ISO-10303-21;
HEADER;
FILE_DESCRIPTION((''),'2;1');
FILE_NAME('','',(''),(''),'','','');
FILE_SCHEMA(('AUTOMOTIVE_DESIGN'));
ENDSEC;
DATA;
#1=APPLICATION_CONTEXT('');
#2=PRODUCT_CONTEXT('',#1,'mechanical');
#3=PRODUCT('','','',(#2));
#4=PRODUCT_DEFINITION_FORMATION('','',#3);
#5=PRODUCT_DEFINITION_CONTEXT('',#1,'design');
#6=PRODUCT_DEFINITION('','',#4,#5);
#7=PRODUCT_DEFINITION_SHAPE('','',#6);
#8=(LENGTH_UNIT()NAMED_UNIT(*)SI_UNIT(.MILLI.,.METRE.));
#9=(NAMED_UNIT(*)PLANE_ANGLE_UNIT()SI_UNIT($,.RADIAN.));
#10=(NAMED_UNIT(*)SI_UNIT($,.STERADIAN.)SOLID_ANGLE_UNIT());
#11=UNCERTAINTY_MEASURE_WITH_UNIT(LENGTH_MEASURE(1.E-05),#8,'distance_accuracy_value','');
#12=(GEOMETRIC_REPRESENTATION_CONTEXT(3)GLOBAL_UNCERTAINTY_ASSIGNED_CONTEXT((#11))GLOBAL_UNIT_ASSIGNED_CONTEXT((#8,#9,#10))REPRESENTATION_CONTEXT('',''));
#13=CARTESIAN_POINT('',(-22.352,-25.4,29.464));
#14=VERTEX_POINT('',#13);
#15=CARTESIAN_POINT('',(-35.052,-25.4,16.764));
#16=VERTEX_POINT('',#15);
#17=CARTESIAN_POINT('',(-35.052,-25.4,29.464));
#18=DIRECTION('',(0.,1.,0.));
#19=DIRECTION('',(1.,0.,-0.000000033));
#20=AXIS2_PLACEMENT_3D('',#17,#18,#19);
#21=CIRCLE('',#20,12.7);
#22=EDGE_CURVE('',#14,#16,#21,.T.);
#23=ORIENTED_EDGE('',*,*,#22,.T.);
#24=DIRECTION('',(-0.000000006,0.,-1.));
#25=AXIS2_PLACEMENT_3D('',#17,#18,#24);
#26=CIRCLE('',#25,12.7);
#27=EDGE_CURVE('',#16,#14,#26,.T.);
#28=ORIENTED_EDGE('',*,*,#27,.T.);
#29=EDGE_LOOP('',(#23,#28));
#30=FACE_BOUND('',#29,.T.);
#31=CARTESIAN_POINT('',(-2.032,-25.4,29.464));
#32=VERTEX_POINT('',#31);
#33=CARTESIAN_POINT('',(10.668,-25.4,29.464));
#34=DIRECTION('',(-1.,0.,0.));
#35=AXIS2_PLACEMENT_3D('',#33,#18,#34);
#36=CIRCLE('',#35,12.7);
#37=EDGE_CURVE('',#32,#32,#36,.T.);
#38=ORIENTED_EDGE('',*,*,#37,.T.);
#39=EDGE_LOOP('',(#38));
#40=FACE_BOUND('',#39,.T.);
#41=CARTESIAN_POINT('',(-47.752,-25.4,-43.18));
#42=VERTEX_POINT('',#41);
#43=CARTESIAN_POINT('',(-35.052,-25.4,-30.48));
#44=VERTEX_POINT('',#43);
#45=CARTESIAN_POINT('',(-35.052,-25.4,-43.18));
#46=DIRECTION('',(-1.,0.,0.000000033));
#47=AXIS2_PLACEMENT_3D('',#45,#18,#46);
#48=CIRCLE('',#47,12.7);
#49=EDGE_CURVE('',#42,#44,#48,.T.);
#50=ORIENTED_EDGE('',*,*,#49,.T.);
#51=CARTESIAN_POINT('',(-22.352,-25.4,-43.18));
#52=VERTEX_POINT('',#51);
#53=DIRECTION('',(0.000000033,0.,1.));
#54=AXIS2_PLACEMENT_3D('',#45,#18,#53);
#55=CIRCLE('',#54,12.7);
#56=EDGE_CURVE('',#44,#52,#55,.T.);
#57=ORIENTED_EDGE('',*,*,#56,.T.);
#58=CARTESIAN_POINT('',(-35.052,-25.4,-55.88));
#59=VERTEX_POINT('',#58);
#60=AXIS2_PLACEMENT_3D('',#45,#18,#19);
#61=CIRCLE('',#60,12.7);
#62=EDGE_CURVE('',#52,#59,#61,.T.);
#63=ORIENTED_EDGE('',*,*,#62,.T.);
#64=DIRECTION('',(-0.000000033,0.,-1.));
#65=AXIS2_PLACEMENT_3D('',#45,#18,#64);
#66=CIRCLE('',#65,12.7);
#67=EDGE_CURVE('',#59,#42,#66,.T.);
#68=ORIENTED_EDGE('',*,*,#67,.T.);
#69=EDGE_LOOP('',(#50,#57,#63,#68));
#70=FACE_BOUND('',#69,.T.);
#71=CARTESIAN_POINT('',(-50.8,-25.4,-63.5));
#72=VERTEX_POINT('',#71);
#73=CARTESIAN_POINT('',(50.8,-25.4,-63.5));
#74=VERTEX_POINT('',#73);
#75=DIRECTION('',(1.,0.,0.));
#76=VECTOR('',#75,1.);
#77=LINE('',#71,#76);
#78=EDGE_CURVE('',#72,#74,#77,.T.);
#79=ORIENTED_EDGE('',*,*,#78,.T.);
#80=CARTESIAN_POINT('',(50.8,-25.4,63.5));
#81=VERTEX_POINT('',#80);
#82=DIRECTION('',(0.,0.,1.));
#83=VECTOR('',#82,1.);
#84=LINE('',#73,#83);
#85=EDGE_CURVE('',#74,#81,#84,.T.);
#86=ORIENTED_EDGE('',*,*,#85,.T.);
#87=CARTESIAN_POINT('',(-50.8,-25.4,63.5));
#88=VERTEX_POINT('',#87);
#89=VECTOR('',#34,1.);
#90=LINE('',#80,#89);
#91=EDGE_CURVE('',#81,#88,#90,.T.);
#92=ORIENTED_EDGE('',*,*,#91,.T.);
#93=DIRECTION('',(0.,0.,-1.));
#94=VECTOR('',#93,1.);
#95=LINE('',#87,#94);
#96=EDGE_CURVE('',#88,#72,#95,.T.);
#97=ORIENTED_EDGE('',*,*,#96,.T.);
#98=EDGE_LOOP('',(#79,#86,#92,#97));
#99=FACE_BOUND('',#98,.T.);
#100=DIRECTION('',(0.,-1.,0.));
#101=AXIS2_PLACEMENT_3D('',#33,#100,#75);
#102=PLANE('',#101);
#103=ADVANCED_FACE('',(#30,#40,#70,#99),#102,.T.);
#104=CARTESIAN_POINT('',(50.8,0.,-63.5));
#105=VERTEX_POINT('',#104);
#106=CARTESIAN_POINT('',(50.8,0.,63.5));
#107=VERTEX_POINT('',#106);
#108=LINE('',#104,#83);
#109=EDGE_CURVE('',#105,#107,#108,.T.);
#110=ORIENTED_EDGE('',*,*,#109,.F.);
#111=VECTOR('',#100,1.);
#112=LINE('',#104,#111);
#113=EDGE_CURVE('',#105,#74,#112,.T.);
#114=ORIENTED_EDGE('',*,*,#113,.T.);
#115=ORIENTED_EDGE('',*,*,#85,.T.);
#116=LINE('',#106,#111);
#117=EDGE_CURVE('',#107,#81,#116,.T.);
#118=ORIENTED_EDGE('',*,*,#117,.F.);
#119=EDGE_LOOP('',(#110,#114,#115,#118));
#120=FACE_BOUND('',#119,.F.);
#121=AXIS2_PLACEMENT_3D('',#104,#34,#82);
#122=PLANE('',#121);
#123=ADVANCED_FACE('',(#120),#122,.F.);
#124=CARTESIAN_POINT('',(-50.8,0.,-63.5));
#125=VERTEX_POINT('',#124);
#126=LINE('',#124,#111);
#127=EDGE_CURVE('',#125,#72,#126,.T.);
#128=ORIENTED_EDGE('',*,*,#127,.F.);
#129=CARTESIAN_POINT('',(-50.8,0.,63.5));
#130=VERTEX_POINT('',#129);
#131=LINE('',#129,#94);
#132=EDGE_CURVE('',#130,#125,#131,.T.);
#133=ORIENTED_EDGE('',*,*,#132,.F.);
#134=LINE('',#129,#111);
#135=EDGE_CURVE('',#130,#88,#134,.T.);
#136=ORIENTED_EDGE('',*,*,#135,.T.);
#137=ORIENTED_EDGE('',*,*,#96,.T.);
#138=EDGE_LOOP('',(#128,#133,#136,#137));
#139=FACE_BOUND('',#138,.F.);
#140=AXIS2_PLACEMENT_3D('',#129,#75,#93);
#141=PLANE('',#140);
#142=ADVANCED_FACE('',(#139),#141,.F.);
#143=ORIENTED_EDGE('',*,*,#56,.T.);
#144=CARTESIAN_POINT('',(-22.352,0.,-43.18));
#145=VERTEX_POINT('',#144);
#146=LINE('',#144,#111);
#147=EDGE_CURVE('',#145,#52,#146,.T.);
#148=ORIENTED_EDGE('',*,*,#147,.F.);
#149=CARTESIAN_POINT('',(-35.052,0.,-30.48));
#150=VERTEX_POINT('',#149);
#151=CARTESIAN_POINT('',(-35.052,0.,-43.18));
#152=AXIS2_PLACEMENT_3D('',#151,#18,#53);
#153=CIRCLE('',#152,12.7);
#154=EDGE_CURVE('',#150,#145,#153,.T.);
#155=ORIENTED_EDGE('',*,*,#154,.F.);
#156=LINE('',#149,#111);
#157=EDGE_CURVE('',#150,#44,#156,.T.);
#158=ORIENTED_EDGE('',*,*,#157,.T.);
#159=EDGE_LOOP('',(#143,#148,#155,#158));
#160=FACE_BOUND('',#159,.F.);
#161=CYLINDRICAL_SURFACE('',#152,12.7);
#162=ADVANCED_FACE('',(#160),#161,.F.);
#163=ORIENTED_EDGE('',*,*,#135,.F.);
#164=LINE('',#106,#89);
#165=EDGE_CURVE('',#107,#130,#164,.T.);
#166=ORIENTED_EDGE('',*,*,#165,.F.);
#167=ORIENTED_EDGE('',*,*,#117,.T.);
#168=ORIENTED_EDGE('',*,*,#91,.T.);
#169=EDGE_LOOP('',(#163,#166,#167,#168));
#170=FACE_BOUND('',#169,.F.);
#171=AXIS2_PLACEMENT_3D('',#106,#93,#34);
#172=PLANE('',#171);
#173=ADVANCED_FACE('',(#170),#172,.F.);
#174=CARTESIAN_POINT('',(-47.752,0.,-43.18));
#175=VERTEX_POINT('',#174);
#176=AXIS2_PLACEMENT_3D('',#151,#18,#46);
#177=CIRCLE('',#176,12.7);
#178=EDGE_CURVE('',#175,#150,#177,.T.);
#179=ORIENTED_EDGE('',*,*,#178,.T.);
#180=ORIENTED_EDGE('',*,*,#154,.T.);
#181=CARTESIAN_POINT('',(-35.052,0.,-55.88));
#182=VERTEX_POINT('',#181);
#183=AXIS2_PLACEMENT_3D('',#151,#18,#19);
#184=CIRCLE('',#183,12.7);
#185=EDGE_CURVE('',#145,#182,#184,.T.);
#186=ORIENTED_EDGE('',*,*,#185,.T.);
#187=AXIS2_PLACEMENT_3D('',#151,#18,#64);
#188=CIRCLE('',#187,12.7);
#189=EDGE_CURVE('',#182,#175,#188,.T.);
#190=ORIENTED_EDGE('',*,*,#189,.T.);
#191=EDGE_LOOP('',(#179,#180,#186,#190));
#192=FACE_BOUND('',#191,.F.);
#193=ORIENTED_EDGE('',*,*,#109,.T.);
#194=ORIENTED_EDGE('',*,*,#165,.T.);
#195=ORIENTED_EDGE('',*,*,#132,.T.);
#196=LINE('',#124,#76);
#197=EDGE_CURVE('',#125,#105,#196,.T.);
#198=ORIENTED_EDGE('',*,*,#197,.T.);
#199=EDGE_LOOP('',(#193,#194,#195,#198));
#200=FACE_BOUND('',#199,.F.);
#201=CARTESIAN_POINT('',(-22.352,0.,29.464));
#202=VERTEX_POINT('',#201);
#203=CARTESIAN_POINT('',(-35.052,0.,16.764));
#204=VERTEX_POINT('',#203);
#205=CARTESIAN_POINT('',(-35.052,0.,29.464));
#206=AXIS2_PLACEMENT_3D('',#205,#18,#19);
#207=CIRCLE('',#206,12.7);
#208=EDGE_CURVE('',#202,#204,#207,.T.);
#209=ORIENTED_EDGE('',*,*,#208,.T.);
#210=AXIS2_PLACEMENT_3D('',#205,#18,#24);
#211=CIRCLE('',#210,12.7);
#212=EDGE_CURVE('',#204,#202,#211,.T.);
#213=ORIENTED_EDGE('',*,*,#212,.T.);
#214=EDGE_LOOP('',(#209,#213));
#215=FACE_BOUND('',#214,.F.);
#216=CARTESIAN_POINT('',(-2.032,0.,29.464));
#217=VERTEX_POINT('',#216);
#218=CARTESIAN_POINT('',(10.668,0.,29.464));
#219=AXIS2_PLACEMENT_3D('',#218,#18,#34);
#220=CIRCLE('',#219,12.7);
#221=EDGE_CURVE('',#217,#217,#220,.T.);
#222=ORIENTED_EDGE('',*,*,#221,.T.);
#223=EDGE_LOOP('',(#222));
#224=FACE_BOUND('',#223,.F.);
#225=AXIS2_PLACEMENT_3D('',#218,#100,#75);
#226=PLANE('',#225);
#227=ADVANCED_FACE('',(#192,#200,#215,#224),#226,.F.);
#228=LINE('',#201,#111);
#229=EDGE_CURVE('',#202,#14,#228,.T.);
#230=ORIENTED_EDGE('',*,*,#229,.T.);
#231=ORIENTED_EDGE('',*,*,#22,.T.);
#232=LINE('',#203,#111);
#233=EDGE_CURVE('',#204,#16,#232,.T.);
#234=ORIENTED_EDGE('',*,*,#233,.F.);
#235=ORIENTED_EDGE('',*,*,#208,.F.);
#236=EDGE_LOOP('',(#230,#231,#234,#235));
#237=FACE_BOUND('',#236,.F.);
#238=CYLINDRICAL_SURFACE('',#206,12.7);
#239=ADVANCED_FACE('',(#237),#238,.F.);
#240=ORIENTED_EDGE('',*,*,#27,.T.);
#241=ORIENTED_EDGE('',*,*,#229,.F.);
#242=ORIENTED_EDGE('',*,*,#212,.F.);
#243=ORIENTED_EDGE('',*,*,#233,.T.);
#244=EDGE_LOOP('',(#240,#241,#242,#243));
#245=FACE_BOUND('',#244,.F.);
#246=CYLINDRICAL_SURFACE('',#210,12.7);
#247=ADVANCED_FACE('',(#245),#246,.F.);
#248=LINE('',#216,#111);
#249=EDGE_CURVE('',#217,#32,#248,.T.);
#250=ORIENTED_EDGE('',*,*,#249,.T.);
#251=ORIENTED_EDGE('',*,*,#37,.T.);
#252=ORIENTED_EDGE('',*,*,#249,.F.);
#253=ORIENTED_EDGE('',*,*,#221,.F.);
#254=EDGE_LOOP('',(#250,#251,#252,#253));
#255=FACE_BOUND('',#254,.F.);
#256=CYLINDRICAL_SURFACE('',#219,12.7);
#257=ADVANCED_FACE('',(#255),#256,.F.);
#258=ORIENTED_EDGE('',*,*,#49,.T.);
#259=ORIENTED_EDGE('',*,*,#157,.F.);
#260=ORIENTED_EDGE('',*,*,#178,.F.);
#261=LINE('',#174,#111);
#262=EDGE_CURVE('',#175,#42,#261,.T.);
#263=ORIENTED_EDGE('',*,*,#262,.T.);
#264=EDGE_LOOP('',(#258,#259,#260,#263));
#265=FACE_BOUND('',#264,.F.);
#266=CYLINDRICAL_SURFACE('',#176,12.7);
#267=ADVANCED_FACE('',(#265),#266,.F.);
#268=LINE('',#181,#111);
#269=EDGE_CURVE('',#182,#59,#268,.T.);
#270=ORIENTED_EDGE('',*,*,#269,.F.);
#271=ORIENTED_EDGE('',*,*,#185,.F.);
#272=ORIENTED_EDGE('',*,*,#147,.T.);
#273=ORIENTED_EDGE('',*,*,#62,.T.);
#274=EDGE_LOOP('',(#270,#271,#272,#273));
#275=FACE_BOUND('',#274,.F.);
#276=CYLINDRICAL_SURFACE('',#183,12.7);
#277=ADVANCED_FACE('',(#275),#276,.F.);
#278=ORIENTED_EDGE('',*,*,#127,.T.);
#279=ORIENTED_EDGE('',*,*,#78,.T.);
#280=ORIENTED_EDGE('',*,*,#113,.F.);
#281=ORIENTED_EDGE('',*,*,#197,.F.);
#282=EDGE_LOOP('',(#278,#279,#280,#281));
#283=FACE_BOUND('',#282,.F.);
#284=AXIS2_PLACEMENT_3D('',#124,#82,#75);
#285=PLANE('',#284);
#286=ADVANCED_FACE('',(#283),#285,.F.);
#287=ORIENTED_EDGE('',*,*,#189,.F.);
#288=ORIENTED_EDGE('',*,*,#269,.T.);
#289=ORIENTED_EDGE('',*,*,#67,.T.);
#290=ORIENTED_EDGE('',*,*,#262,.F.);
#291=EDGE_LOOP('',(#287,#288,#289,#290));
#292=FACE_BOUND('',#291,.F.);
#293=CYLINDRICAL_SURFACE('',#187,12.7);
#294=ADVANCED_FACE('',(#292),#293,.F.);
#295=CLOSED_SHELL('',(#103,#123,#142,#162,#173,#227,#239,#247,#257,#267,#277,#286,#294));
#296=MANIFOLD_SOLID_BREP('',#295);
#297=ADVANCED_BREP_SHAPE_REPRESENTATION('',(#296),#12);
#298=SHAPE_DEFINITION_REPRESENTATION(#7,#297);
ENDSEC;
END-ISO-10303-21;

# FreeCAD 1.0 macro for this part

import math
import FreeCAD as App
import Part
import Sketcher
Q = App.Units.Quantity


def add_polygon(sketch, points):
    """Adds a closed chain of lines whose ends are joined by coincident constraints."""
    first, n = sketch.GeometryCount, len(points)
    for a, b in zip(points, points[1:] + points[:1]):
        sketch.addGeometry(Part.LineSegment(App.Vector(*a, 0), App.Vector(*b, 0)), False)
    for i in range(n):
        sketch.addConstraint(Sketcher.Constraint("Coincident", first + i, 2, first + (i + 1) % n, 1))

doc = App.newDocument("Part")
body = doc.addObject("PartDesign::Body", "Body")

sketch1 = doc.addObject("Sketcher::SketchObject", "Sketch")
body.addObject(sketch1)
sketch1.AttachmentSupport = (doc.XZ_Plane, [""])
sketch1.MapMode = "FlatFace"
add_polygon(sketch1, [(50.8, 63.5), (-50.8, 63.5), (-50.8, -63.5), (50.8, -63.5)])
sketch1.addGeometry(Part.ArcOfCircle(Part.Circle(App.Vector(-35.052, -43.18, 0), App.Vector(0, 0, 1), 12.7), math.radians(90.000002), math.radians(179.999998)), False)
sketch1.addGeometry(Part.ArcOfCircle(Part.Circle(App.Vector(-35.052, -43.18, 0), App.Vector(0, 0, 1), 12.7), math.radians(0.000002), math.radians(89.999998)), False)
sketch1.addGeometry(Part.ArcOfCircle(Part.Circle(App.Vector(-35.052, -43.18, 0), App.Vector(0, 0, 1), 12.7), math.radians(-89.999998), math.radians(-0.000002)), False)
sketch1.addGeometry(Part.ArcOfCircle(Part.Circle(App.Vector(-35.052, -43.18, 0), App.Vector(0, 0, 1), 12.7), math.radians(-179.999998), math.radians(-90.000002)), False)
sketch1.addGeometry(Part.ArcOfCircle(Part.Circle(App.Vector(-35.052, 29.464, 0), App.Vector(0, 0, 1), 12.7), math.radians(0), math.radians(270)), False)
sketch1.addGeometry(Part.ArcOfCircle(Part.Circle(App.Vector(-35.052, 29.464, 0), App.Vector(0, 0, 1), 12.7), math.radians(-89.999998), math.radians(-0.000002)), False)
sketch1.addGeometry(Part.Circle(App.Vector(10.668, 29.464, 0), App.Vector(0, 0, 1), 12.7), False)
sketch1.addConstraint([
    Sketcher.Constraint("Tangent", 4, 1, 5, 2),
    Sketcher.Constraint("Tangent", 5, 1, 6, 2),
    Sketcher.Constraint("Tangent", 6, 1, 7, 2),
    Sketcher.Constraint("Tangent", 7, 1, 4, 2),
    Sketcher.Constraint("Tangent", 8, 1, 9, 2),
    Sketcher.Constraint("Coincident", 9, 1, 8, 2),
    Sketcher.Constraint("Horizontal", 0),
    Sketcher.Constraint("Vertical", 1),
    Sketcher.Constraint("Horizontal", 2),
    Sketcher.Constraint("Vertical", 3),
    Sketcher.Constraint("Equal", 4, 5),
    Sketcher.Constraint("Equal", 7, 8),
    Sketcher.Constraint("Equal", 9, 10),
    Sketcher.Constraint("Symmetric", 0, 2, 2, 2, -1, 1),
    Sketcher.Constraint("Horizontal", 9, 3, 10, 3),
    Sketcher.Constraint("Horizontal", 7, 3, 5, 1),
    Sketcher.Constraint("Horizontal", 5, 1, 7, 1),
    Sketcher.Constraint("Horizontal", 10, 3, 8, 1),
    Sketcher.Constraint("Vertical", 7, 3, 8, 3),
    Sketcher.Constraint("Vertical", 9, 3, 4, 1),
    Sketcher.Constraint("Vertical", 4, 1, 6, 1),
    Sketcher.Constraint("Vertical", 6, 1, 9, 1),
    Sketcher.Constraint("Diameter", 10, Q("1 in")),
    Sketcher.Constraint("DistanceX", 0, 2, 0, 1, Q("4 in")),
    Sketcher.Constraint("DistanceY", 1, 2, 1, 1, Q("5 in")),
    Sketcher.Constraint("DistanceY", 4, 3, -1, 1, Q("1.7 in")),
    Sketcher.Constraint("DistanceX", 8, 3, 10, 3, Q("1.8 in")),
    Sketcher.Constraint("DistanceX", 4, 3, -1, 1, Q("1.38 in")),
    Sketcher.Constraint("DistanceY", -1, 1, 8, 3, Q("1.16 in")),
])
pad1 = doc.addObject("PartDesign::Pad", "Pad")
body.addObject(pad1)
pad1.Profile = sketch1
pad1.Length = Q("1 in")

doc.recompute()
